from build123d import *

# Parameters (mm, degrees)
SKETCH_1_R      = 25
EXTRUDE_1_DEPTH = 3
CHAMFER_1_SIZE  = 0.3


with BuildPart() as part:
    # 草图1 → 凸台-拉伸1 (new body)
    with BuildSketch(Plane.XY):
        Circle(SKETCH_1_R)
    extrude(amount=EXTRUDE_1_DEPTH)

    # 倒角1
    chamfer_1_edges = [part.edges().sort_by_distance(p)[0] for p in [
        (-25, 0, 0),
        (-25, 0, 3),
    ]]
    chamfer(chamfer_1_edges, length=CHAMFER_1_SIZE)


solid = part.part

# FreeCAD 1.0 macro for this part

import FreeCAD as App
import Part
import Sketcher

V = App.Vector


def edges_at(feature, points):
    """Names of the edges that pass closest to the given points."""
    edges = feature.Shape.Edges
    near = lambda p: min(range(len(edges)), key=lambda i: edges[i].distToShape(Part.Vertex(*p))[0])
    return sorted({f"Edge{near(p) + 1}" for p in points})

doc = App.newDocument("Part")
body = doc.addObject("PartDesign::Body", "Body")

# Sketch on XY plane
sketch1 = body.newObject("Sketcher::SketchObject", "Sketch")
sketch1.AttachmentSupport = (doc.getObject("XY_Plane"), [""])
sketch1.MapMode = "FlatFace"
sketch1.addGeometry(Part.Circle(V(0, 0, 0), V(0, 0, 1), 25), False)
sketch1.addConstraint(Sketcher.Constraint("Coincident", 0, 3, -1, 1))
sketch1.addConstraint(Sketcher.Constraint("Diameter", 0, 50.0))
pad1 = body.newObject("PartDesign::Pad", "Pad")
pad1.Profile = sketch1
pad1.Length = 3
doc.recompute()

chamfer = body.newObject("PartDesign::Chamfer", "Chamfer")
chamfer.Base = (pad1, edges_at(pad1, [(-25, 0, 0), (-25, 0, 3)]))
chamfer.Size = 0.3

doc.recompute()
